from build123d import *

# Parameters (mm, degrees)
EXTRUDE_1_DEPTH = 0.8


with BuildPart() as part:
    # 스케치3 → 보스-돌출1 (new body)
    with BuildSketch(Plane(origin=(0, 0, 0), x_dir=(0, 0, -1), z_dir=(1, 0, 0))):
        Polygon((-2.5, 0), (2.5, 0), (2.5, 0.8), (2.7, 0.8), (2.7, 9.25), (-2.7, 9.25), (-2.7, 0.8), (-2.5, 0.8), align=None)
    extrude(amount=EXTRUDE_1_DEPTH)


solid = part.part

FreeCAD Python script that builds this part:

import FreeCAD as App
import Part
import Sketcher
Q = App.Units.Quantity


def add_polygon(sketch, points):
    """Adds a closed chain of lines whose ends are joined by coincident constraints."""
    first, n = sketch.GeometryCount, len(points)
    for a, b in zip(points, points[1:] + points[:1]):
        sketch.addGeometry(Part.LineSegment(App.Vector(*a, 0), App.Vector(*b, 0)), False)
    for i in range(n):
        sketch.addConstraint(Sketcher.Constraint("Coincident", first + i, 2, first + (i + 1) % n, 1))

doc = App.newDocument("Part")
body = doc.addObject("PartDesign::Body", "Body")

# Sketch on YZ plane
sketch1 = body.newObject("Sketcher::SketchObject", "Sketch")
sketch1.AttachmentSupport = (doc.getObject("YZ_Plane"), [""])
sketch1.MapMode = "FlatFace"
add_polygon(sketch1, [(0, 2.5), (0, -2.5), (0.8, -2.5), (0.8, -2.7), (9.25, -2.7), (9.25, 2.7), (0.8, 2.7), (0.8, 2.5)])  # lines 0-7
sketch1.addConstraint([
    Sketcher.Constraint("Vertical", 0),
    Sketcher.Constraint("Horizontal", 1),
    Sketcher.Constraint("Vertical", 2),
    Sketcher.Constraint("Horizontal", 3),
    Sketcher.Constraint("Vertical", 4),
    Sketcher.Constraint("Horizontal", 5),
    Sketcher.Constraint("Vertical", 6),
    Sketcher.Constraint("Horizontal", 7),
    Sketcher.Constraint("Symmetric", 0, 2, 7, 2, -1, 1),
    Sketcher.Constraint("Symmetric", 2, 2, 5, 2, -1),
    Sketcher.Constraint("DistanceY", 0, 2, 0, 1, Q("5 mm")),
    Sketcher.Constraint("DistanceX", 1, 1, 1, 2, Q("0.8 mm")),
    Sketcher.Constraint("DistanceY", 2, 2, 2, 1, Q("0.2 mm")),
    Sketcher.Constraint("DistanceX", 3, 1, 3, 2, Q("8.45 mm")),
])
pad1 = body.newObject("PartDesign::Pad", "Pad")
pad1.Profile = sketch1
pad1.Length = 0.8

doc.recompute()
